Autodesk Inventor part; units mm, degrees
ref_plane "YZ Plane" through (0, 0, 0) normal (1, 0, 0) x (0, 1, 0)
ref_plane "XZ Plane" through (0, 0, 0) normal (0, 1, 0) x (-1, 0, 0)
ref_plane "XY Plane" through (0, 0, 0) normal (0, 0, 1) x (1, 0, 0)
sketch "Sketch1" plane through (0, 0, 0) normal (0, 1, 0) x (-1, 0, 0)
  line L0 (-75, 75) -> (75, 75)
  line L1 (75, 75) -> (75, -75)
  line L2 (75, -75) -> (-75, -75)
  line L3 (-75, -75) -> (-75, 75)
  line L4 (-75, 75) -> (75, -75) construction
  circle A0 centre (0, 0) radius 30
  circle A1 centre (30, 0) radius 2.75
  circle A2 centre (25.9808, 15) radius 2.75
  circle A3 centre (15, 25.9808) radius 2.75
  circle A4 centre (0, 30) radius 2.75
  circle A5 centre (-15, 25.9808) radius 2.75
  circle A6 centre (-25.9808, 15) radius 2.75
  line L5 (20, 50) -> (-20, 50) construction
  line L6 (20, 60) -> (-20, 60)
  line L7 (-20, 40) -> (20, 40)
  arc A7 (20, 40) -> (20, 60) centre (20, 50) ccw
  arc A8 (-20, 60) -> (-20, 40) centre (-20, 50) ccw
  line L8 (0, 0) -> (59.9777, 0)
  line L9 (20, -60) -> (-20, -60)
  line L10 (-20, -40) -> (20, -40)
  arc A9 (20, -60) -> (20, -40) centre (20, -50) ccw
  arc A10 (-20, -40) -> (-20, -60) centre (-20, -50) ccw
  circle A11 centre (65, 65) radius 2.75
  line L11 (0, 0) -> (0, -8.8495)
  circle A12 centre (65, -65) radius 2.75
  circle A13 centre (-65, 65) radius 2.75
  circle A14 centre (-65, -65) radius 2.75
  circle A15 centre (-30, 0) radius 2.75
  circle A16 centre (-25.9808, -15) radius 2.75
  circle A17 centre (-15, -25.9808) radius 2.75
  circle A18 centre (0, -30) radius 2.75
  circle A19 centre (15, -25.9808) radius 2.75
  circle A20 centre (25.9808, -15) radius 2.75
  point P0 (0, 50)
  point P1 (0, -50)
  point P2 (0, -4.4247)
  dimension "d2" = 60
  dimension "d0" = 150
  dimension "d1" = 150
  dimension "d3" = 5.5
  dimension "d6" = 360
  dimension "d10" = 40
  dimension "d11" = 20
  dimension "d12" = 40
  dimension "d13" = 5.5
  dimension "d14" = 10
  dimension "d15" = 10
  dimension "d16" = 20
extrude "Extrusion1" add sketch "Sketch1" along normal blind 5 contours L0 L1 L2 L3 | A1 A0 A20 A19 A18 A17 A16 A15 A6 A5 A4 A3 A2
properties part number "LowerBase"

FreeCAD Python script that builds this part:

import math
import FreeCAD as App
import Part
import Sketcher

V = App.Vector
Q = App.Units.Quantity

doc = App.newDocument("Part")
body = doc.addObject("PartDesign::Body", "Body")

# Sketch on XZ plane
sketch1 = doc.addObject("Sketcher::SketchObject", "Sketch")
body.addObject(sketch1)
sketch1.AttachmentSupport = (doc.XZ_Plane, [""])
sketch1.MapMode = "FlatFace"
sketch1.addGeometry([
    Part.LineSegment(V(-75, 75, 0), V(75, 75, 0)),  # 0
    Part.LineSegment(V(75, 75, 0), V(75, -75, 0)),  # 1
    Part.LineSegment(V(75, -75, 0), V(-75, -75, 0)),  # 2
    Part.LineSegment(V(-75, -75, 0), V(-75, 75, 0)),  # 3
    Part.Circle(V(65, -65, 0), V(0, 0, 1), 2.8),  # 4
    Part.ArcOfCircle(Part.Circle(V(-20, -50, 0), V(0, 0, 1), 10), math.radians(90), math.radians(270)),  # 5
    Part.LineSegment(V(-20, -60, 0), V(20, -60, 0)),  # 6
    Part.ArcOfCircle(Part.Circle(V(20, -50, 0), V(0, 0, 1), 10), math.radians(-90), math.radians(90)),  # 7
    Part.LineSegment(V(20, -40, 0), V(-20, -40, 0)),  # 8
    Part.Circle(V(-65, -65, 0), V(0, 0, 1), 2.8),  # 9
    Part.Circle(V(65, 65, 0), V(0, 0, 1), 2.8),  # 10
    Part.Circle(V(-26, 15, 0), V(0, 0, 1), 2.8),  # 11
    Part.Circle(V(-15, 26, 0), V(0, 0, 1), 2.8),  # 12
    Part.Circle(V(0, 30, 0), V(0, 0, 1), 2.8),  # 13
    Part.Circle(V(15, 26, 0), V(0, 0, 1), 2.8),  # 14
    Part.Circle(V(26, 15, 0), V(0, 0, 1), 2.8),  # 15
    Part.Circle(V(30, 0, 0), V(0, 0, 1), 2.8),  # 16
    Part.Circle(V(26, -15, 0), V(0, 0, 1), 2.8),  # 17
    Part.Circle(V(15, -26, 0), V(0, 0, 1), 2.8),  # 18
    Part.Circle(V(0, -30, 0), V(0, 0, 1), 2.8),  # 19
    Part.Circle(V(-15, -26, 0), V(0, 0, 1), 2.8),  # 20
    Part.Circle(V(-26, -15, 0), V(0, 0, 1), 2.8),  # 21
    Part.Circle(V(-30, 0, 0), V(0, 0, 1), 2.8),  # 22
    Part.LineSegment(V(20, 60, 0), V(-20, 60, 0)),  # 23
    Part.ArcOfCircle(Part.Circle(V(-20, 50, 0), V(0, 0, 1), 10), math.radians(90), math.radians(270)),  # 24
    Part.LineSegment(V(-20, 40, 0), V(20, 40, 0)),  # 25
    Part.ArcOfCircle(Part.Circle(V(20, 50, 0), V(0, 0, 1), 10), math.radians(-90), math.radians(90)),  # 26
    Part.Circle(V(-65, 65, 0), V(0, 0, 1), 2.8),  # 27
], False)
sketch1.addConstraint([
    Sketcher.Constraint("Coincident", 0, 2, 1, 1),
    Sketcher.Constraint("Coincident", 1, 2, 2, 1),
    Sketcher.Constraint("Coincident", 2, 2, 3, 1),
    Sketcher.Constraint("Coincident", 3, 2, 0, 1),
    Sketcher.Constraint("Tangent", 5, 2, 6, 1),
    Sketcher.Constraint("Tangent", 6, 2, 7, 1),
    Sketcher.Constraint("Tangent", 7, 2, 8, 1),
    Sketcher.Constraint("Tangent", 8, 2, 5, 1),
    Sketcher.Constraint("Tangent", 23, 2, 24, 1),
    Sketcher.Constraint("Tangent", 24, 2, 25, 1),
    Sketcher.Constraint("Tangent", 25, 2, 26, 1),
    Sketcher.Constraint("Tangent", 26, 2, 23, 1),
    Sketcher.Constraint("Horizontal", 0),
    Sketcher.Constraint("Vertical", 1),
    Sketcher.Constraint("Horizontal", 2),
    Sketcher.Constraint("Vertical", 3),
    Sketcher.Constraint("Horizontal", 6),
    Sketcher.Constraint("Horizontal", 8),
    Sketcher.Constraint("Horizontal", 23),
    Sketcher.Constraint("Horizontal", 25),
    Sketcher.Constraint("Equal", 4, 9),
    Sketcher.Constraint("Equal", 9, 10),
    Sketcher.Constraint("Equal", 10, 11),
    Sketcher.Constraint("Equal", 11, 12),
    Sketcher.Constraint("Equal", 12, 13),
    Sketcher.Constraint("Equal", 13, 14),
    Sketcher.Constraint("Equal", 14, 15),
    Sketcher.Constraint("Equal", 15, 16),
    Sketcher.Constraint("Equal", 16, 17),
    Sketcher.Constraint("Equal", 17, 18),
    Sketcher.Constraint("Equal", 18, 19),
    Sketcher.Constraint("Equal", 19, 20),
    Sketcher.Constraint("Equal", 20, 21),
    Sketcher.Constraint("Equal", 21, 22),
    Sketcher.Constraint("Equal", 7, 24),
    Sketcher.Constraint("Equal", 22, 27),
    Sketcher.Constraint("Symmetric", 9, 3, 10, 3, -1, 1),
    Sketcher.Constraint("Symmetric", 11, 3, 17, 3, -1, 1),
    Sketcher.Constraint("Symmetric", 12, 3, 18, 3, -1, 1),
    Sketcher.Constraint("Symmetric", 13, 3, 19, 3, -1, 1),
    Sketcher.Constraint("Symmetric", 14, 3, 20, 3, -1, 1),
    Sketcher.Constraint("Symmetric", 15, 3, 21, 3, -1, 1),
    Sketcher.Constraint("Symmetric", 16, 3, 22, 3, -1, 1),
    Sketcher.Constraint("Symmetric", 7, 3, 24, 3, -1, 1),
    Sketcher.Constraint("Symmetric", 4, 3, 27, 3, -1, 1),
    Sketcher.Constraint("Symmetric", 0, 2, 2, 2, -1, 1),
    Sketcher.Constraint("Symmetric", 4, 3, 9, 3, -2),
    Sketcher.Constraint("Symmetric", 12, 3, 14, 3, -2),
    Sketcher.Constraint("Symmetric", 11, 3, 15, 3, -2),
    Sketcher.Constraint("PointOnObject", 13, 3, -2),
    Sketcher.Constraint("PointOnObject", 16, 3, -1),
    Sketcher.Constraint("Vertical", 5, 3, 24, 3),
    Sketcher.Constraint("Vertical", 7, 3, 26, 3),
    Sketcher.Constraint("Equal", 2, 1),
    Sketcher.Constraint("Radius", 5, Q("10 mm")),
    Sketcher.Constraint("Diameter", 4, Q("5.5 mm")),
    Sketcher.Constraint("DistanceX", 0, 1, 0, 2, Q("150 mm")),
    Sketcher.Constraint("DistanceX", 6, 1, 6, 2, Q("40 mm")),
    Sketcher.Constraint("DistanceY", 5, 2, -1, 1, Q("60 mm")),
    Sketcher.Constraint("DistanceX", 7, 3, 16, 3, Q("10 mm")),
    Sketcher.Constraint("DistanceY", 5, 3, 19, 3, Q("20 mm")),
    Sketcher.Constraint("DistanceX", 10, 3, 0, 2, Q("10 mm")),
    Sketcher.Constraint("DistanceY", 10, 3, 0, 2, Q("10 mm")),
    Sketcher.Constraint("DistanceX", 14, 3, 0, 2, Q("60 mm")),
    Sketcher.Constraint("DistanceY", 15, 3, 0, 2, Q("60 mm")),
    Sketcher.Constraint("DistanceX", 11, 3, -1, 1, Q("25.9808 mm")),
    Sketcher.Constraint("DistanceY", -1, 1, 12, 3, Q("25.9808 mm")),
])
pad1 = doc.addObject("PartDesign::Pad", "Pad")
body.addObject(pad1)
pad1.Profile = sketch1
pad1.Length = 5
pad1.Reversed = True

doc.recompute()
